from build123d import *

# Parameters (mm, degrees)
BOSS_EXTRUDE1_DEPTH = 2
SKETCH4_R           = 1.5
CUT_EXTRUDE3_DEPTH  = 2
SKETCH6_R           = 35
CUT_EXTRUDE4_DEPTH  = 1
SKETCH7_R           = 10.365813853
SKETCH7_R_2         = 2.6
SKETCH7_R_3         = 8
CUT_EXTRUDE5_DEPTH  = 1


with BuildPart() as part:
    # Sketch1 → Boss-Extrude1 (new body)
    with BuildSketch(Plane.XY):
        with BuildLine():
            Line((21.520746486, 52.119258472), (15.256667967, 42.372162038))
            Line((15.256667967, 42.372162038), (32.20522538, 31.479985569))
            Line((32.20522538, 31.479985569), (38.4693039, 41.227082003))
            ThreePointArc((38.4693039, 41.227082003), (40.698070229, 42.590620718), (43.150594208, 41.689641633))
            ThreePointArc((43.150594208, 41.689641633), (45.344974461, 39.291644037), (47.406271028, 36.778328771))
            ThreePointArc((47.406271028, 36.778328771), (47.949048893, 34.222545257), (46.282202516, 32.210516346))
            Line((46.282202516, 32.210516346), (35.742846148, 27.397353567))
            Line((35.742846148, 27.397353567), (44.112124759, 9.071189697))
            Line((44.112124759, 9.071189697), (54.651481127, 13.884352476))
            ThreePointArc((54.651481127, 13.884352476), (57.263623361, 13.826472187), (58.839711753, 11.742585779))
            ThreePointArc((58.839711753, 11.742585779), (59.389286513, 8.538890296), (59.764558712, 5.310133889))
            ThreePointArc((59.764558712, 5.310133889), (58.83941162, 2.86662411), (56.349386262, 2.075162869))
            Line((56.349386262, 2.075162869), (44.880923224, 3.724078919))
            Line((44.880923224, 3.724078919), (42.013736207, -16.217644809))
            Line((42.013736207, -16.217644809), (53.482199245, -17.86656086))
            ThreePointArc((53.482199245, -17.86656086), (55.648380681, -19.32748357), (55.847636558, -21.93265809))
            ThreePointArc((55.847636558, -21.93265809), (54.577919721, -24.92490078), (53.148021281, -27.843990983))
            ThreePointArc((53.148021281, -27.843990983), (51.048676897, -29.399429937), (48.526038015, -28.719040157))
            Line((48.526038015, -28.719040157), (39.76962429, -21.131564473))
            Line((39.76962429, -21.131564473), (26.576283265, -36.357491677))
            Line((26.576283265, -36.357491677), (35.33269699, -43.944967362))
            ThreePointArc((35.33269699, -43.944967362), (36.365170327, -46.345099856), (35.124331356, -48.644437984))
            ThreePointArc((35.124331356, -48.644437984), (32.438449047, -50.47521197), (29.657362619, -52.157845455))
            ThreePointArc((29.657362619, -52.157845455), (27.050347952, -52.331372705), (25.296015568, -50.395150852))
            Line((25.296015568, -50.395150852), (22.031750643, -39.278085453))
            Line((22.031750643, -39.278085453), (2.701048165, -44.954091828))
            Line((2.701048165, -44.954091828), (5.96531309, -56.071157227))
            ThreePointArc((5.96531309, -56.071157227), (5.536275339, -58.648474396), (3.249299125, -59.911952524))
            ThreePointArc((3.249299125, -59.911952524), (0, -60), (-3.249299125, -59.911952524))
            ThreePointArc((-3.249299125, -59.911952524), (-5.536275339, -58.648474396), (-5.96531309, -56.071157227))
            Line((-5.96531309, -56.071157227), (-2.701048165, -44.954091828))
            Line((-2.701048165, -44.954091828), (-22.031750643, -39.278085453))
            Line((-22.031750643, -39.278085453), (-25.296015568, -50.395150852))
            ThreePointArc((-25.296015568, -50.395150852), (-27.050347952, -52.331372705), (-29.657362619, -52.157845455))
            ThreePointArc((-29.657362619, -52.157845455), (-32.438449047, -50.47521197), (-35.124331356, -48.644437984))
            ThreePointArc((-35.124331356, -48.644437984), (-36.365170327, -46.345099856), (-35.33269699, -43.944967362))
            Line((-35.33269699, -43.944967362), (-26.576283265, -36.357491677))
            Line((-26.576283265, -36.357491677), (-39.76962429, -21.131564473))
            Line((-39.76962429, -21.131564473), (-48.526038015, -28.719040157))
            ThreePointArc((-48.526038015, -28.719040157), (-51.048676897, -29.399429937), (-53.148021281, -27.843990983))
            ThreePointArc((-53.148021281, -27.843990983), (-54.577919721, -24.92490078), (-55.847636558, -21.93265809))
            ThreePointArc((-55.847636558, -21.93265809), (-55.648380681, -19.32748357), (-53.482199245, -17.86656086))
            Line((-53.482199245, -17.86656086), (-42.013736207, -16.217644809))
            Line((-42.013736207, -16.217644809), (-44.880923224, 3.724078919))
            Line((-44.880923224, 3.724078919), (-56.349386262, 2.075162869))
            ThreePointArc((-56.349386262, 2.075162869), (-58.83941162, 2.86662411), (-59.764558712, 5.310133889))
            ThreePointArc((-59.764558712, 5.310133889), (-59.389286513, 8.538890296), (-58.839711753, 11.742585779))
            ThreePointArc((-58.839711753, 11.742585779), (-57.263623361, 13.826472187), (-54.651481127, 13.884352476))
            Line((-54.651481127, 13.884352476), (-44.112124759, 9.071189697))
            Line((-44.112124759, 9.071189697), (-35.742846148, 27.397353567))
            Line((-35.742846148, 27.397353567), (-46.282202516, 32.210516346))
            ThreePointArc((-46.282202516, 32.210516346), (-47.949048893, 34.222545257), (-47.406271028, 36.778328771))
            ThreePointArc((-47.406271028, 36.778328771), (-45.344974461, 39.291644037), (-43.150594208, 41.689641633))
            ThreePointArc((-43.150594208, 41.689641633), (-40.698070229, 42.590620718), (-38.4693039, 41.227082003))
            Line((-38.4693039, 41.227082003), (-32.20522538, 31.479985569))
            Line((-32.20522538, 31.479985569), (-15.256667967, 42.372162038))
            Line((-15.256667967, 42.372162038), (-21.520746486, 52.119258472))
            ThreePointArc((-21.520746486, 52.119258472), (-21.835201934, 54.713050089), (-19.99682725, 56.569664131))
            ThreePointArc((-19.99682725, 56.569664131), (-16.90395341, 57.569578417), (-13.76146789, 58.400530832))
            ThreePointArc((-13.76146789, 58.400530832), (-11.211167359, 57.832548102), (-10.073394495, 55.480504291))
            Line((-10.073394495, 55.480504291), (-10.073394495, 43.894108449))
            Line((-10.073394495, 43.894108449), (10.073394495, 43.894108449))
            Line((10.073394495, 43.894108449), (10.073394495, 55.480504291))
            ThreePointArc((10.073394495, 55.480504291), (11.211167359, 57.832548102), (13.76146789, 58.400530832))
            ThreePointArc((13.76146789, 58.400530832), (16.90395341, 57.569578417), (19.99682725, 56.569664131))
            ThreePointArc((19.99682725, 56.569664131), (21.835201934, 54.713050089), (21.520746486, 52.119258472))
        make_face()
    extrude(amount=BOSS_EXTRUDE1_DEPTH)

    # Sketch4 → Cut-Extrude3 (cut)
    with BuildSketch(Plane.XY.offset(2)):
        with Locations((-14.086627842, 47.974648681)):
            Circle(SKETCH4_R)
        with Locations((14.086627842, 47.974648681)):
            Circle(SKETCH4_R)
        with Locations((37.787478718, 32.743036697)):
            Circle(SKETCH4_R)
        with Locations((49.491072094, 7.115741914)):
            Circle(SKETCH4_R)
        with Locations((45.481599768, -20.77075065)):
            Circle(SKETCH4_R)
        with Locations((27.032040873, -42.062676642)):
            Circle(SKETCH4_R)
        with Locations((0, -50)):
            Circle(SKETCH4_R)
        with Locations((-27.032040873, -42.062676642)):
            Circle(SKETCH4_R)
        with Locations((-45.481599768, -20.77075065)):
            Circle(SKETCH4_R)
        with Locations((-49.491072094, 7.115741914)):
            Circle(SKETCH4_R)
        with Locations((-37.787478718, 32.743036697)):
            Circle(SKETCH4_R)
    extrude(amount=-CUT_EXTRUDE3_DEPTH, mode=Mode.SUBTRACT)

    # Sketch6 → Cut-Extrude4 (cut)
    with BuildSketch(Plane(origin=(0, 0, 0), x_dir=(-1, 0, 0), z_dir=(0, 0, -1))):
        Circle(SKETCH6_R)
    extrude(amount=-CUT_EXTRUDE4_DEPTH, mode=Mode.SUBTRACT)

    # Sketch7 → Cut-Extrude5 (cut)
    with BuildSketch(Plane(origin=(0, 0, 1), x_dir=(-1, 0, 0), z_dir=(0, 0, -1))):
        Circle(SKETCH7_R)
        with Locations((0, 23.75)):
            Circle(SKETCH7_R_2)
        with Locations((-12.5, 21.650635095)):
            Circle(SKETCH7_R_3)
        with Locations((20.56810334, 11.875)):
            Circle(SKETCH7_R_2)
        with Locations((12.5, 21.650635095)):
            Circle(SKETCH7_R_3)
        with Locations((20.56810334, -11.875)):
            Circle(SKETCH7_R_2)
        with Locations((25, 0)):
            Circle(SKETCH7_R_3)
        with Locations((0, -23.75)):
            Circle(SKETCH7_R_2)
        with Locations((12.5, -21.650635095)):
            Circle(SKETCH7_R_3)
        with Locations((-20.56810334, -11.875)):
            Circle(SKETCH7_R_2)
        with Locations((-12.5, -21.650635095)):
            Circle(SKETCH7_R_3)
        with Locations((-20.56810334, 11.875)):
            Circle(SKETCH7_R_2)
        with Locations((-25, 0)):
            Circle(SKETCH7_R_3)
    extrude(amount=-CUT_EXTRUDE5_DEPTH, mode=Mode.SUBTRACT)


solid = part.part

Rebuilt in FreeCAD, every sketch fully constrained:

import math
import FreeCAD as App
import Part
import Sketcher

V = App.Vector
Q = App.Units.Quantity

doc = App.newDocument("Part")
body = doc.addObject("PartDesign::Body", "Body")

sketch1 = doc.addObject("Sketcher::SketchObject", "Sketch")
body.addObject(sketch1)
sketch1.AttachmentSupport = (doc.XY_Plane, [""])
sketch1.MapMode = "FlatFace"
sketch1.addGeometry(Part.LineSegment(V(15.256668, 42.372162, 0), V(21.520746, 52.119258, 0)), False)
sketch1.addGeometry(Part.ArcOfCircle(Part.Circle(V(18.996986, 53.741181, 0), V(0, 0, 1), 3), math.radians(-32.727273), math.radians(70.531993)), False)
sketch1.addGeometry(Part.ArcOfCircle(Part.Circle(V(0, 0, 0), V(0, 0, 1), 60), math.radians(70.531993), math.radians(76.740734)), False)
sketch1.addGeometry(Part.ArcOfCircle(Part.Circle(V(13.073394, 55.480504, 0), V(0, 0, 1), 3), math.radians(76.740734), math.radians(180)), False)
sketch1.addGeometry(Part.LineSegment(V(10.073394, 55.480504, 0), V(10.073394, 43.894108, 0)), False)
sketch1.addGeometry(Part.LineSegment(V(10.073394, 43.894108, 0), V(-10.073394, 43.894108, 0)), False)
sketch1.addGeometry(Part.LineSegment(V(-10.073394, 43.894108, 0), V(-10.073394, 55.480504, 0)), False)
sketch1.addGeometry(Part.ArcOfCircle(Part.Circle(V(-13.073394, 55.480504, 0), V(0, 0, 1), 3), math.radians(0), math.radians(103.259266)), False)
sketch1.addGeometry(Part.ArcOfCircle(Part.Circle(V(0, 0, 0), V(0, 0, 1), 60), math.radians(103.259266), math.radians(109.468007)), False)
sketch1.addGeometry(Part.ArcOfCircle(Part.Circle(V(-18.996986, 53.741181, 0), V(0, 0, 1), 3), math.radians(109.468007), math.radians(212.727273)), False)
sketch1.addGeometry(Part.LineSegment(V(-21.520746, 52.119258, 0), V(-15.256668, 42.372162, 0)), False)
sketch1.addGeometry(Part.LineSegment(V(-15.256668, 42.372162, 0), V(-32.205225, 31.479986, 0)), False)
sketch1.addGeometry(Part.LineSegment(V(-32.205225, 31.479986, 0), V(-38.469304, 41.227082, 0)), False)
sketch1.addGeometry(Part.ArcOfCircle(Part.Circle(V(-40.993064, 39.60516, 0), V(0, 0, 1), 3), math.radians(32.727273), math.radians(135.986538)), False)
sketch1.addGeometry(Part.ArcOfCircle(Part.Circle(V(0, 0, 0), V(0, 0, 1), 60), math.radians(135.986538), math.radians(142.19528)), False)
sketch1.addGeometry(Part.ArcOfCircle(Part.Circle(V(-45.035957, 34.939412, 0), V(0, 0, 1), 3), math.radians(142.19528), math.radians(245.454545)), False)
sketch1.addGeometry(Part.LineSegment(V(-46.282203, 32.210516, 0), V(-35.742846, 27.397354, 0)), False)
sketch1.addGeometry(Part.LineSegment(V(-35.742846, 27.397354, 0), V(-44.112125, 9.07119, 0)), False)
sketch1.addGeometry(Part.LineSegment(V(-44.112125, 9.07119, 0), V(-54.651481, 13.884352, 0)), False)
sketch1.addGeometry(Part.ArcOfCircle(Part.Circle(V(-55.897726, 11.155456, 0), V(0, 0, 1), 3), math.radians(65.454545), math.radians(168.713811)), False)
sketch1.addGeometry(Part.ArcOfCircle(Part.Circle(V(0, 0, 0), V(0, 0, 1), 60), math.radians(168.713811), math.radians(174.922553)), False)
sketch1.addGeometry(Part.ArcOfCircle(Part.Circle(V(-56.776331, 5.044627, 0), V(0, 0, 1), 3), math.radians(174.922553), math.radians(278.181818)), False)
sketch1.addGeometry(Part.LineSegment(V(-56.349386, 2.075163, 0), V(-44.880923, 3.724079, 0)), False)
sketch1.addGeometry(Part.LineSegment(V(-44.880923, 3.724079, 0), V(-42.013736, -16.217645, 0)), False)
sketch1.addGeometry(Part.LineSegment(V(-42.013736, -16.217645, 0), V(-53.482199, -17.866561, 0)), False)
sketch1.addGeometry(Part.ArcOfCircle(Part.Circle(V(-53.055255, -20.836025, 0), V(0, 0, 1), 3), math.radians(98.181818), math.radians(201.441084)), False)
sketch1.addGeometry(Part.ArcOfCircle(Part.Circle(V(0, 0, 0), V(0, 0, 1), 60), math.radians(-158.558916), math.radians(-152.350175)), False)
sketch1.addGeometry(Part.ArcOfCircle(Part.Circle(V(-50.49062, -26.451791, 0), V(0, 0, 1), 3), math.radians(-152.350175), math.radians(-49.090909)), False)
sketch1.addGeometry(Part.LineSegment(V(-48.526038, -28.71904, 0), V(-39.769624, -21.131564, 0)), False)
sketch1.addGeometry(Part.LineSegment(V(-39.769624, -21.131564, 0), V(-26.576283, -36.357492, 0)), False)
sketch1.addGeometry(Part.LineSegment(V(-26.576283, -36.357492, 0), V(-35.332697, -43.944967, 0)), False)
sketch1.addGeometry(Part.ArcOfCircle(Part.Circle(V(-33.368115, -46.212216, 0), V(0, 0, 1), 3), math.radians(130.909091), math.radians(234.168357)), False)
sketch1.addGeometry(Part.ArcOfCircle(Part.Circle(V(0, 0, 0), V(0, 0, 1), 60), math.radians(-125.831643), math.radians(-119.622902)), False)
sketch1.addGeometry(Part.ArcOfCircle(Part.Circle(V(-28.174494, -49.549953, 0), V(0, 0, 1), 3), math.radians(-119.622902), math.radians(-16.363636)), False)
sketch1.addGeometry(Part.LineSegment(V(-25.296016, -50.395151, 0), V(-22.031751, -39.278085, 0)), False)
sketch1.addGeometry(Part.LineSegment(V(-22.031751, -39.278085, 0), V(-2.701048, -44.954092, 0)), False)
sketch1.addGeometry(Part.LineSegment(V(-2.701048, -44.954092, 0), V(-5.965313, -56.071157, 0)), False)
sketch1.addGeometry(Part.ArcOfCircle(Part.Circle(V(-3.086834, -56.916355, 0), V(0, 0, 1), 3), math.radians(163.636364), math.radians(266.895629)), False)
sketch1.addGeometry(Part.ArcOfCircle(Part.Circle(V(0, 0, 0), V(0, 0, 1), 60), math.radians(-93.104371), math.radians(-86.895629)), False)
sketch1.addGeometry(Part.ArcOfCircle(Part.Circle(V(3.086834, -56.916355, 0), V(0, 0, 1), 3), math.radians(-86.895629), math.radians(16.363636)), False)
sketch1.addGeometry(Part.LineSegment(V(5.965313, -56.071157, 0), V(2.701048, -44.954092, 0)), False)
sketch1.addGeometry(Part.LineSegment(V(2.701048, -44.954092, 0), V(22.031751, -39.278085, 0)), False)
sketch1.addGeometry(Part.LineSegment(V(22.031751, -39.278085, 0), V(25.296016, -50.395151, 0)), False)
sketch1.addGeometry(Part.ArcOfCircle(Part.Circle(V(28.174494, -49.549953, 0), V(0, 0, 1), 3), math.radians(-163.636364), math.radians(-60.377098)), False)
sketch1.addGeometry(Part.ArcOfCircle(Part.Circle(V(0, 0, 0), V(0, 0, 1), 60), math.radians(-60.377098), math.radians(-54.168357)), False)
sketch1.addGeometry(Part.ArcOfCircle(Part.Circle(V(33.368115, -46.212216, 0), V(0, 0, 1), 3), math.radians(-54.168357), math.radians(49.090909)), False)
sketch1.addGeometry(Part.LineSegment(V(35.332697, -43.944967, 0), V(26.576283, -36.357492, 0)), False)
sketch1.addGeometry(Part.LineSegment(V(26.576283, -36.357492, 0), V(39.769624, -21.131564, 0)), False)
sketch1.addGeometry(Part.LineSegment(V(39.769624, -21.131564, 0), V(48.526038, -28.71904, 0)), False)
sketch1.addGeometry(Part.ArcOfCircle(Part.Circle(V(50.49062, -26.451791, 0), V(0, 0, 1), 3), math.radians(-130.909091), math.radians(-27.649825)), False)
sketch1.addGeometry(Part.ArcOfCircle(Part.Circle(V(0, 0, 0), V(0, 0, 1), 60), math.radians(-27.649825), math.radians(-21.441084)), False)
sketch1.addGeometry(Part.ArcOfCircle(Part.Circle(V(53.055255, -20.836025, 0), V(0, 0, 1), 3), math.radians(-21.441084), math.radians(81.818182)), False)
sketch1.addGeometry(Part.LineSegment(V(53.482199, -17.866561, 0), V(42.013736, -16.217645, 0)), False)
sketch1.addGeometry(Part.LineSegment(V(42.013736, -16.217645, 0), V(44.880923, 3.724079, 0)), False)
sketch1.addGeometry(Part.LineSegment(V(44.880923, 3.724079, 0), V(56.349386, 2.075163, 0)), False)
sketch1.addGeometry(Part.ArcOfCircle(Part.Circle(V(56.776331, 5.044627, 0), V(0, 0, 1), 3), math.radians(-98.181818), math.radians(5.077447)), False)
sketch1.addGeometry(Part.ArcOfCircle(Part.Circle(V(0, 0, 0), V(0, 0, 1), 60), math.radians(5.077447), math.radians(11.286189)), False)
sketch1.addGeometry(Part.ArcOfCircle(Part.Circle(V(55.897726, 11.155456, 0), V(0, 0, 1), 3), math.radians(11.286189), math.radians(114.545455)), False)
sketch1.addGeometry(Part.LineSegment(V(54.651481, 13.884352, 0), V(44.112125, 9.07119, 0)), False)
sketch1.addGeometry(Part.LineSegment(V(44.112125, 9.07119, 0), V(35.742846, 27.397354, 0)), False)
sketch1.addGeometry(Part.LineSegment(V(35.742846, 27.397354, 0), V(46.282203, 32.210516, 0)), False)
sketch1.addGeometry(Part.ArcOfCircle(Part.Circle(V(45.035957, 34.939412, 0), V(0, 0, 1), 3), math.radians(-65.454545), math.radians(37.80472)), False)
sketch1.addGeometry(Part.ArcOfCircle(Part.Circle(V(0, 0, 0), V(0, 0, 1), 60), math.radians(37.80472), math.radians(44.013462)), False)
sketch1.addGeometry(Part.ArcOfCircle(Part.Circle(V(40.993064, 39.60516, 0), V(0, 0, 1), 3), math.radians(44.013462), math.radians(147.272727)), False)
sketch1.addGeometry(Part.LineSegment(V(38.469304, 41.227082, 0), V(32.205225, 31.479986, 0)), False)
sketch1.addGeometry(Part.LineSegment(V(32.205225, 31.479986, 0), V(15.256668, 42.372162, 0)), False)
sketch1.addConstraint(Sketcher.Constraint("Tangent", 0, 2, 1, 1))
sketch1.addConstraint(Sketcher.Constraint("Tangent", 1, 2, 2, 1))
sketch1.addConstraint(Sketcher.Constraint("Tangent", 2, 2, 3, 1))
sketch1.addConstraint(Sketcher.Constraint("Tangent", 3, 2, 4, 1))
sketch1.addConstraint(Sketcher.Constraint("Coincident", 4, 2, 5, 1))
sketch1.addConstraint(Sketcher.Constraint("Coincident", 5, 2, 6, 1))
sketch1.addConstraint(Sketcher.Constraint("Tangent", 6, 2, 7, 1))
sketch1.addConstraint(Sketcher.Constraint("Tangent", 7, 2, 8, 1))
sketch1.addConstraint(Sketcher.Constraint("Tangent", 8, 2, 9, 1))
sketch1.addConstraint(Sketcher.Constraint("Tangent", 9, 2, 10, 1))
sketch1.addConstraint(Sketcher.Constraint("Coincident", 10, 2, 11, 1))
sketch1.addConstraint(Sketcher.Constraint("Coincident", 11, 2, 12, 1))
sketch1.addConstraint(Sketcher.Constraint("Tangent", 12, 2, 13, 1))
sketch1.addConstraint(Sketcher.Constraint("Tangent", 13, 2, 14, 1))
sketch1.addConstraint(Sketcher.Constraint("Tangent", 14, 2, 15, 1))
sketch1.addConstraint(Sketcher.Constraint("Tangent", 15, 2, 16, 1))
sketch1.addConstraint(Sketcher.Constraint("Coincident", 16, 2, 17, 1))
sketch1.addConstraint(Sketcher.Constraint("Coincident", 17, 2, 18, 1))
sketch1.addConstraint(Sketcher.Constraint("Tangent", 18, 2, 19, 1))
sketch1.addConstraint(Sketcher.Constraint("Tangent", 19, 2, 20, 1))
sketch1.addConstraint(Sketcher.Constraint("Tangent", 20, 2, 21, 1))
sketch1.addConstraint(Sketcher.Constraint("Tangent", 21, 2, 22, 1))
sketch1.addConstraint(Sketcher.Constraint("Coincident", 22, 2, 23, 1))
sketch1.addConstraint(Sketcher.Constraint("Coincident", 23, 2, 24, 1))
sketch1.addConstraint(Sketcher.Constraint("Tangent", 24, 2, 25, 1))
sketch1.addConstraint(Sketcher.Constraint("Tangent", 25, 2, 26, 1))
sketch1.addConstraint(Sketcher.Constraint("Tangent", 26, 2, 27, 1))
sketch1.addConstraint(Sketcher.Constraint("Tangent", 27, 2, 28, 1))
sketch1.addConstraint(Sketcher.Constraint("Coincident", 28, 2, 29, 1))
sketch1.addConstraint(Sketcher.Constraint("Coincident", 29, 2, 30, 1))
sketch1.addConstraint(Sketcher.Constraint("Tangent", 30, 2, 31, 1))
sketch1.addConstraint(Sketcher.Constraint("Tangent", 31, 2, 32, 1))
sketch1.addConstraint(Sketcher.Constraint("Tangent", 32, 2, 33, 1))
sketch1.addConstraint(Sketcher.Constraint("Tangent", 33, 2, 34, 1))
sketch1.addConstraint(Sketcher.Constraint("Coincident", 34, 2, 35, 1))
sketch1.addConstraint(Sketcher.Constraint("Coincident", 35, 2, 36, 1))
sketch1.addConstraint(Sketcher.Constraint("Tangent", 36, 2, 37, 1))
sketch1.addConstraint(Sketcher.Constraint("Tangent", 37, 2, 38, 1))
sketch1.addConstraint(Sketcher.Constraint("Tangent", 38, 2, 39, 1))
sketch1.addConstraint(Sketcher.Constraint("Tangent", 39, 2, 40, 1))
sketch1.addConstraint(Sketcher.Constraint("Coincident", 40, 2, 41, 1))
sketch1.addConstraint(Sketcher.Constraint("Coincident", 41, 2, 42, 1))
sketch1.addConstraint(Sketcher.Constraint("Tangent", 42, 2, 43, 1))
sketch1.addConstraint(Sketcher.Constraint("Tangent", 43, 2, 44, 1))
sketch1.addConstraint(Sketcher.Constraint("Tangent", 44, 2, 45, 1))
sketch1.addConstraint(Sketcher.Constraint("Tangent", 45, 2, 46, 1))
sketch1.addConstraint(Sketcher.Constraint("Coincident", 46, 2, 47, 1))
sketch1.addConstraint(Sketcher.Constraint("Coincident", 47, 2, 48, 1))
sketch1.addConstraint(Sketcher.Constraint("Tangent", 48, 2, 49, 1))
sketch1.addConstraint(Sketcher.Constraint("Tangent", 49, 2, 50, 1))
sketch1.addConstraint(Sketcher.Constraint("Tangent", 50, 2, 51, 1))
sketch1.addConstraint(Sketcher.Constraint("Tangent", 51, 2, 52, 1))
sketch1.addConstraint(Sketcher.Constraint("Coincident", 52, 2, 53, 1))
sketch1.addConstraint(Sketcher.Constraint("Coincident", 53, 2, 54, 1))
sketch1.addConstraint(Sketcher.Constraint("Tangent", 54, 2, 55, 1))
sketch1.addConstraint(Sketcher.Constraint("Tangent", 55, 2, 56, 1))
sketch1.addConstraint(Sketcher.Constraint("Tangent", 56, 2, 57, 1))
sketch1.addConstraint(Sketcher.Constraint("Tangent", 57, 2, 58, 1))
sketch1.addConstraint(Sketcher.Constraint("Coincident", 58, 2, 59, 1))
sketch1.addConstraint(Sketcher.Constraint("Coincident", 59, 2, 60, 1))
sketch1.addConstraint(Sketcher.Constraint("Tangent", 60, 2, 61, 1))
sketch1.addConstraint(Sketcher.Constraint("Tangent", 61, 2, 62, 1))
sketch1.addConstraint(Sketcher.Constraint("Tangent", 62, 2, 63, 1))
sketch1.addConstraint(Sketcher.Constraint("Tangent", 63, 2, 64, 1))
sketch1.addConstraint(Sketcher.Constraint("Coincident", 64, 2, 65, 1))
sketch1.addConstraint(Sketcher.Constraint("Coincident", 65, 2, 0, 1))
sketch1.addConstraint(Sketcher.Constraint("Vertical", 4))
sketch1.addConstraint(Sketcher.Constraint("Horizontal", 5))
sketch1.addConstraint(Sketcher.Constraint("Vertical", 6))
sketch1.addConstraint(Sketcher.Constraint("Coincident", 2, 3, -1, 1))
sketch1.addConstraint(Sketcher.Constraint("Coincident", 8, 3, -1, 1))
sketch1.addConstraint(Sketcher.Constraint("Coincident", 14, 3, -1, 1))
sketch1.addConstraint(Sketcher.Constraint("Coincident", 20, 3, -1, 1))
sketch1.addConstraint(Sketcher.Constraint("Coincident", 26, 3, -1, 1))
sketch1.addConstraint(Sketcher.Constraint("Coincident", 32, 3, -1, 1))
sketch1.addConstraint(Sketcher.Constraint("Coincident", 38, 3, -1, 1))
sketch1.addConstraint(Sketcher.Constraint("Coincident", 44, 3, -1, 1))
sketch1.addConstraint(Sketcher.Constraint("Coincident", 50, 3, -1, 1))
sketch1.addConstraint(Sketcher.Constraint("Coincident", 56, 3, -1, 1))
sketch1.addConstraint(Sketcher.Constraint("Coincident", 62, 3, -1, 1))
sketch1.addConstraint(Sketcher.Constraint("Equal", 1, 3))
sketch1.addConstraint(Sketcher.Constraint("Equal", 3, 7))
sketch1.addConstraint(Sketcher.Constraint("Equal", 2, 8))
sketch1.addConstraint(Sketcher.Constraint("Equal", 7, 9))
sketch1.addConstraint(Sketcher.Constraint("Equal", 9, 13))
sketch1.addConstraint(Sketcher.Constraint("Equal", 8, 14))
sketch1.addConstraint(Sketcher.Constraint("Equal", 13, 15))
sketch1.addConstraint(Sketcher.Constraint("Equal", 15, 19))
sketch1.addConstraint(Sketcher.Constraint("Equal", 14, 20))
sketch1.addConstraint(Sketcher.Constraint("Equal", 19, 21))
sketch1.addConstraint(Sketcher.Constraint("Equal", 21, 25))
sketch1.addConstraint(Sketcher.Constraint("Equal", 20, 26))
sketch1.addConstraint(Sketcher.Constraint("Equal", 25, 27))
sketch1.addConstraint(Sketcher.Constraint("Equal", 27, 31))
sketch1.addConstraint(Sketcher.Constraint("Equal", 26, 32))
sketch1.addConstraint(Sketcher.Constraint("Equal", 31, 33))
sketch1.addConstraint(Sketcher.Constraint("Equal", 33, 37))
sketch1.addConstraint(Sketcher.Constraint("Equal", 32, 38))
sketch1.addConstraint(Sketcher.Constraint("Equal", 37, 39))
sketch1.addConstraint(Sketcher.Constraint("Equal", 39, 43))
sketch1.addConstraint(Sketcher.Constraint("Equal", 38, 44))
sketch1.addConstraint(Sketcher.Constraint("Equal", 43, 45))
sketch1.addConstraint(Sketcher.Constraint("Equal", 45, 49))
sketch1.addConstraint(Sketcher.Constraint("Equal", 44, 50))
sketch1.addConstraint(Sketcher.Constraint("Equal", 49, 51))
sketch1.addConstraint(Sketcher.Constraint("Equal", 51, 55))
sketch1.addConstraint(Sketcher.Constraint("Equal", 50, 56))
sketch1.addConstraint(Sketcher.Constraint("Equal", 55, 57))
sketch1.addConstraint(Sketcher.Constraint("Equal", 57, 61))
sketch1.addConstraint(Sketcher.Constraint("Equal", 56, 62))
sketch1.addConstraint(Sketcher.Constraint("Equal", 61, 63))
sketch1.addConstraint(Sketcher.Constraint("Symmetric", 0, 2, 9, 2, -2))
sketch1.addConstraint(Sketcher.Constraint("Symmetric", 36, 2, 39, 2, -2))
sketch1.addConstraint(Sketcher.Constraint("Symmetric", 34, 2, 41, 2, -2))
sketch1.addConstraint(Sketcher.Constraint("Symmetric", 30, 2, 45, 2, -2))
sketch1.addConstraint(Sketcher.Constraint("Symmetric", 28, 2, 47, 2, -2))
sketch1.addConstraint(Sketcher.Constraint("Symmetric", 24, 2, 51, 2, -2))
sketch1.addConstraint(Sketcher.Constraint("Symmetric", 22, 2, 53, 2, -2))
sketch1.addConstraint(Sketcher.Constraint("Symmetric", 18, 2, 57, 2, -2))
sketch1.addConstraint(Sketcher.Constraint("Symmetric", 16, 2, 59, 2, -2))
sketch1.addConstraint(Sketcher.Constraint("Symmetric", 12, 2, 63, 2, -2))
sketch1.addConstraint(Sketcher.Constraint("Perpendicular", 10, 11))
sketch1.addConstraint(Sketcher.Constraint("Perpendicular", 11, 12))
sketch1.addConstraint(Sketcher.Constraint("Perpendicular", 16, 17))
sketch1.addConstraint(Sketcher.Constraint("Perpendicular", 17, 18))
sketch1.addConstraint(Sketcher.Constraint("Perpendicular", 22, 23))
sketch1.addConstraint(Sketcher.Constraint("Perpendicular", 23, 24))
sketch1.addConstraint(Sketcher.Constraint("Perpendicular", 28, 29))
sketch1.addConstraint(Sketcher.Constraint("Perpendicular", 29, 30))
sketch1.addConstraint(Sketcher.Constraint("Perpendicular", 34, 35))
sketch1.addConstraint(Sketcher.Constraint("Perpendicular", 35, 36))
sketch1.addConstraint(Sketcher.Constraint("Perpendicular", 40, 41))
sketch1.addConstraint(Sketcher.Constraint("Perpendicular", 41, 42))
sketch1.addConstraint(Sketcher.Constraint("Perpendicular", 46, 47))
sketch1.addConstraint(Sketcher.Constraint("Perpendicular", 47, 48))
sketch1.addConstraint(Sketcher.Constraint("Perpendicular", 52, 53))
sketch1.addConstraint(Sketcher.Constraint("Perpendicular", 53, 54))
sketch1.addConstraint(Sketcher.Constraint("Perpendicular", 58, 59))
sketch1.addConstraint(Sketcher.Constraint("Perpendicular", 59, 60))
sketch1.addConstraint(Sketcher.Constraint("Perpendicular", 64, 65))
sketch1.addConstraint(Sketcher.Constraint("Horizontal", 3, 3, 7, 3))
sketch1.addConstraint(Sketcher.Constraint("Horizontal", 11, 2, 64, 2))
sketch1.addConstraint(Sketcher.Constraint("Equal", 10, 12))
sketch1.addConstraint(Sketcher.Constraint("Equal", 12, 16))
sketch1.addConstraint(Sketcher.Constraint("Equal", 11, 17))
sketch1.addConstraint(Sketcher.Constraint("Equal", 16, 18))
sketch1.addConstraint(Sketcher.Constraint("Equal", 18, 22))
sketch1.addConstraint(Sketcher.Constraint("Equal", 17, 23))
sketch1.addConstraint(Sketcher.Constraint("Equal", 22, 24))
sketch1.addConstraint(Sketcher.Constraint("Equal", 24, 28))
sketch1.addConstraint(Sketcher.Constraint("Equal", 23, 29))
sketch1.addConstraint(Sketcher.Constraint("Equal", 28, 30))
sketch1.addConstraint(Sketcher.Constraint("Equal", 30, 34))
sketch1.addConstraint(Sketcher.Constraint("Equal", 29, 35))
sketch1.addConstraint(Sketcher.Constraint("Equal", 34, 36))
sketch1.addConstraint(Sketcher.Constraint("Radius", 1, Q("3 mm")))
sketch1.addConstraint(Sketcher.Constraint("Radius", 2, Q("60 mm")))
sketch1.addConstraint(Sketcher.Constraint("DistanceX", 5, 2, 5, 1, Q("20.146789 mm")))
sketch1.addConstraint(Sketcher.Constraint("DistanceX", 24, 2, -1, 1, Q("53.482199 mm")))
sketch1.addConstraint(Sketcher.Constraint("DistanceX", 37, 2, -1, 1, Q("3.249299 mm")))
sketch1.addConstraint(Sketcher.Constraint("Distance", 11, Q("20.146789 mm")))
sketch1.addConstraint(Sketcher.Constraint("DistanceY", 4, 2, 4, 1, Q("11.586396 mm")))
sketch1.addConstraint(Sketcher.Constraint("DistanceY", -1, 1, 1, 3, Q("53.741181 mm")))
sketch1.addConstraint(Sketcher.Constraint("DistanceX", 27, 3, -1, 1, Q("50.49062 mm")))
sketch1.addConstraint(Sketcher.Constraint("DistanceX", 14, 2, -1, 1, Q("47.406271 mm")))
sketch1.addConstraint(Sketcher.Constraint("DistanceY", -1, 1, 17, 2, Q("9.07119 mm")))
pad1 = doc.addObject("PartDesign::Pad", "Pad")
body.addObject(pad1)
pad1.Profile = sketch1
pad1.Length = 2

sketch2 = doc.addObject("Sketcher::SketchObject", "Sketch001")
body.addObject(sketch2)
sketch2.AttachmentSupport = (doc.XY_Plane, [""])
sketch2.MapMode = "FlatFace"
sketch2.AttachmentOffset = App.Placement(V(0, 0, 2), App.Rotation())
sketch2.addGeometry(Part.Circle(V(-14.086628, 47.974649, 0), V(0, 0, 1), 1.5), False)
sketch2.addGeometry(Part.Circle(V(14.086628, 47.974649, 0), V(0, 0, 1), 1.5), False)
sketch2.addGeometry(Part.Circle(V(37.787479, 32.743037, 0), V(0, 0, 1), 1.5), False)
sketch2.addGeometry(Part.Circle(V(49.491072, 7.115742, 0), V(0, 0, 1), 1.5), False)
sketch2.addGeometry(Part.Circle(V(45.4816, -20.770751, 0), V(0, 0, 1), 1.5), False)
sketch2.addGeometry(Part.Circle(V(27.032041, -42.062677, 0), V(0, 0, 1), 1.5), False)
sketch2.addGeometry(Part.Circle(V(0, -50, 0), V(0, 0, 1), 1.5), False)
sketch2.addGeometry(Part.Circle(V(-27.032041, -42.062677, 0), V(0, 0, 1), 1.5), False)
sketch2.addGeometry(Part.Circle(V(-45.4816, -20.770751, 0), V(0, 0, 1), 1.5), False)
sketch2.addGeometry(Part.Circle(V(-49.491072, 7.115742, 0), V(0, 0, 1), 1.5), False)
sketch2.addGeometry(Part.Circle(V(-37.787479, 32.743037, 0), V(0, 0, 1), 1.5), False)
sketch2.addConstraint(Sketcher.Constraint("Equal", 0, 1))
sketch2.addConstraint(Sketcher.Constraint("Equal", 1, 2))
sketch2.addConstraint(Sketcher.Constraint("Equal", 2, 3))
sketch2.addConstraint(Sketcher.Constraint("Equal", 3, 4))
sketch2.addConstraint(Sketcher.Constraint("Equal", 4, 5))
sketch2.addConstraint(Sketcher.Constraint("Equal", 5, 6))
sketch2.addConstraint(Sketcher.Constraint("Equal", 6, 7))
sketch2.addConstraint(Sketcher.Constraint("Equal", 7, 8))
sketch2.addConstraint(Sketcher.Constraint("Equal", 8, 9))
sketch2.addConstraint(Sketcher.Constraint("Equal", 9, 10))
sketch2.addConstraint(Sketcher.Constraint("Symmetric", 0, 3, 1, 3, -2))
sketch2.addConstraint(Sketcher.Constraint("Symmetric", 5, 3, 7, 3, -2))
sketch2.addConstraint(Sketcher.Constraint("Symmetric", 4, 3, 8, 3, -2))
sketch2.addConstraint(Sketcher.Constraint("Symmetric", 3, 3, 9, 3, -2))
sketch2.addConstraint(Sketcher.Constraint("Symmetric", 2, 3, 10, 3, -2))
sketch2.addConstraint(Sketcher.Constraint("PointOnObject", 6, 3, -2))
sketch2.addConstraint(Sketcher.Constraint("Diameter", 0, Q("3 mm")))
sketch2.addConstraint(Sketcher.Constraint("DistanceY", 6, 3, -1, 1, Q("50 mm")))
sketch2.addConstraint(Sketcher.Constraint("DistanceX", -1, 1, 4, 3, Q("45.4816 mm")))
sketch2.addConstraint(Sketcher.Constraint("DistanceX", 0, 3, 3, 3, Q("63.5777 mm")))
sketch2.addConstraint(Sketcher.Constraint("DistanceY", 4, 3, 1, 3, Q("68.745399 mm")))
sketch2.addConstraint(Sketcher.Constraint("DistanceY", -1, 1, 0, 3, Q("47.974649 mm")))
sketch2.addConstraint(Sketcher.Constraint("DistanceX", -1, 1, 2, 3, Q("37.787479 mm")))
sketch2.addConstraint(Sketcher.Constraint("DistanceY", -1, 1, 3, 3, Q("7.115742 mm")))
sketch2.addConstraint(Sketcher.Constraint("DistanceX", -1, 1, 5, 3, Q("27.032041 mm")))
sketch2.addConstraint(Sketcher.Constraint("DistanceX", 1, 3, 2, 3, Q("23.700851 mm")))
sketch2.addConstraint(Sketcher.Constraint("DistanceY", 2, 3, 1, 3, Q("15.231612 mm")))
sketch2.addConstraint(Sketcher.Constraint("DistanceY", 5, 3, 3, 3, Q("49.178419 mm")))
pocket1 = doc.addObject("PartDesign::Pocket", "Pocket")
body.addObject(pocket1)
pocket1.Profile = sketch2
pocket1.Length = 2

sketch3 = doc.addObject("Sketcher::SketchObject", "Sketch002")
body.addObject(sketch3)
sketch3.AttachmentSupport = (doc.XY_Plane, [""])
sketch3.MapMode = "FlatFace"
sketch3.addGeometry(Part.Circle(V(0, 0, 0), V(0, 0, 1), 35), False)
sketch3.addConstraint(Sketcher.Constraint("Coincident", 0, 3, -1, 1))
sketch3.addConstraint(Sketcher.Constraint("Diameter", 0, Q("70 mm")))
pocket2 = doc.addObject("PartDesign::Pocket", "Pocket001")
body.addObject(pocket2)
pocket2.Profile = sketch3
pocket2.Length = 1
pocket2.Reversed = True

sketch4 = doc.addObject("Sketcher::SketchObject", "Sketch003")
body.addObject(sketch4)
sketch4.AttachmentSupport = (doc.XY_Plane, [""])
sketch4.MapMode = "FlatFace"
sketch4.AttachmentOffset = App.Placement(V(0, 0, 1), App.Rotation())
sketch4.addGeometry(Part.Circle(V(0, 0, 0), V(0, 0, 1), 10.365814), False)
sketch4.addGeometry(Part.Circle(V(0, 23.75, 0), V(0, 0, 1), 2.6), False)
sketch4.addGeometry(Part.Circle(V(12.5, 21.650635, 0), V(0, 0, 1), 8), False)
sketch4.addGeometry(Part.Circle(V(-20.568103, 11.875, 0), V(0, 0, 1), 2.6), False)
sketch4.addGeometry(Part.Circle(V(-12.5, 21.650635, 0), V(0, 0, 1), 8), False)
sketch4.addGeometry(Part.Circle(V(-20.568103, -11.875, 0), V(0, 0, 1), 2.6), False)
sketch4.addGeometry(Part.Circle(V(-25, 0, 0), V(0, 0, 1), 8), False)
sketch4.addGeometry(Part.Circle(V(0, -23.75, 0), V(0, 0, 1), 2.6), False)
sketch4.addGeometry(Part.Circle(V(-12.5, -21.650635, 0), V(0, 0, 1), 8), False)
sketch4.addGeometry(Part.Circle(V(20.568103, -11.875, 0), V(0, 0, 1), 2.6), False)
sketch4.addGeometry(Part.Circle(V(12.5, -21.650635, 0), V(0, 0, 1), 8), False)
sketch4.addGeometry(Part.Circle(V(20.568103, 11.875, 0), V(0, 0, 1), 2.6), False)
sketch4.addGeometry(Part.Circle(V(25, 0, 0), V(0, 0, 1), 8), False)
sketch4.addConstraint(Sketcher.Constraint("Coincident", 0, 3, -1, 1))
sketch4.addConstraint(Sketcher.Constraint("Equal", 1, 3))
sketch4.addConstraint(Sketcher.Constraint("Equal", 2, 4))
sketch4.addConstraint(Sketcher.Constraint("Equal", 3, 5))
sketch4.addConstraint(Sketcher.Constraint("Equal", 4, 6))
sketch4.addConstraint(Sketcher.Constraint("Equal", 5, 7))
sketch4.addConstraint(Sketcher.Constraint("Equal", 6, 8))
sketch4.addConstraint(Sketcher.Constraint("Equal", 7, 9))
sketch4.addConstraint(Sketcher.Constraint("Equal", 8, 10))
sketch4.addConstraint(Sketcher.Constraint("Equal", 9, 11))
sketch4.addConstraint(Sketcher.Constraint("Equal", 10, 12))
sketch4.addConstraint(Sketcher.Constraint("Symmetric", 1, 3, 7, 3, -1, 1))
sketch4.addConstraint(Sketcher.Constraint("Symmetric", 2, 3, 8, 3, -1, 1))
sketch4.addConstraint(Sketcher.Constraint("Symmetric", 3, 3, 9, 3, -1, 1))
sketch4.addConstraint(Sketcher.Constraint("Symmetric", 4, 3, 10, 3, -1, 1))
sketch4.addConstraint(Sketcher.Constraint("Symmetric", 5, 3, 11, 3, -1, 1))
sketch4.addConstraint(Sketcher.Constraint("Symmetric", 6, 3, 12, 3, -1, 1))
sketch4.addConstraint(Sketcher.Constraint("Symmetric", 2, 3, 4, 3, -2))
sketch4.addConstraint(Sketcher.Constraint("Symmetric", 5, 3, 9, 3, -2))
sketch4.addConstraint(Sketcher.Constraint("PointOnObject", 1, 3, -2))
sketch4.addConstraint(Sketcher.Constraint("PointOnObject", 6, 3, -1))
sketch4.addConstraint(Sketcher.Constraint("Diameter", 2, Q("16 mm")))
sketch4.addConstraint(Sketcher.Constraint("Diameter", 1, Q("5.2 mm")))
sketch4.addConstraint(Sketcher.Constraint("DistanceX", 6, 3, -1, 1, Q("25 mm")))
sketch4.addConstraint(Sketcher.Constraint("DistanceX", 4, 3, 2, 3, Q("25 mm")))
sketch4.addConstraint(Sketcher.Constraint("DistanceY", -1, 1, 1, 3, Q("23.75 mm")))
sketch4.addConstraint(Sketcher.Constraint("DistanceY", 5, 3, 3, 3, Q("23.75 mm")))
sketch4.addConstraint(Sketcher.Constraint("Diameter", 0, Q("20.731628 mm")))
sketch4.addConstraint(Sketcher.Constraint("DistanceY", -1, 1, 2, 3, Q("21.650635 mm")))
sketch4.addConstraint(Sketcher.Constraint("DistanceX", 3, 3, -1, 1, Q("20.568103 mm")))
pocket3 = doc.addObject("PartDesign::Pocket", "Pocket002")
body.addObject(pocket3)
pocket3.Profile = sketch4
pocket3.Length = 1
pocket3.Reversed = True

doc.recompute()
